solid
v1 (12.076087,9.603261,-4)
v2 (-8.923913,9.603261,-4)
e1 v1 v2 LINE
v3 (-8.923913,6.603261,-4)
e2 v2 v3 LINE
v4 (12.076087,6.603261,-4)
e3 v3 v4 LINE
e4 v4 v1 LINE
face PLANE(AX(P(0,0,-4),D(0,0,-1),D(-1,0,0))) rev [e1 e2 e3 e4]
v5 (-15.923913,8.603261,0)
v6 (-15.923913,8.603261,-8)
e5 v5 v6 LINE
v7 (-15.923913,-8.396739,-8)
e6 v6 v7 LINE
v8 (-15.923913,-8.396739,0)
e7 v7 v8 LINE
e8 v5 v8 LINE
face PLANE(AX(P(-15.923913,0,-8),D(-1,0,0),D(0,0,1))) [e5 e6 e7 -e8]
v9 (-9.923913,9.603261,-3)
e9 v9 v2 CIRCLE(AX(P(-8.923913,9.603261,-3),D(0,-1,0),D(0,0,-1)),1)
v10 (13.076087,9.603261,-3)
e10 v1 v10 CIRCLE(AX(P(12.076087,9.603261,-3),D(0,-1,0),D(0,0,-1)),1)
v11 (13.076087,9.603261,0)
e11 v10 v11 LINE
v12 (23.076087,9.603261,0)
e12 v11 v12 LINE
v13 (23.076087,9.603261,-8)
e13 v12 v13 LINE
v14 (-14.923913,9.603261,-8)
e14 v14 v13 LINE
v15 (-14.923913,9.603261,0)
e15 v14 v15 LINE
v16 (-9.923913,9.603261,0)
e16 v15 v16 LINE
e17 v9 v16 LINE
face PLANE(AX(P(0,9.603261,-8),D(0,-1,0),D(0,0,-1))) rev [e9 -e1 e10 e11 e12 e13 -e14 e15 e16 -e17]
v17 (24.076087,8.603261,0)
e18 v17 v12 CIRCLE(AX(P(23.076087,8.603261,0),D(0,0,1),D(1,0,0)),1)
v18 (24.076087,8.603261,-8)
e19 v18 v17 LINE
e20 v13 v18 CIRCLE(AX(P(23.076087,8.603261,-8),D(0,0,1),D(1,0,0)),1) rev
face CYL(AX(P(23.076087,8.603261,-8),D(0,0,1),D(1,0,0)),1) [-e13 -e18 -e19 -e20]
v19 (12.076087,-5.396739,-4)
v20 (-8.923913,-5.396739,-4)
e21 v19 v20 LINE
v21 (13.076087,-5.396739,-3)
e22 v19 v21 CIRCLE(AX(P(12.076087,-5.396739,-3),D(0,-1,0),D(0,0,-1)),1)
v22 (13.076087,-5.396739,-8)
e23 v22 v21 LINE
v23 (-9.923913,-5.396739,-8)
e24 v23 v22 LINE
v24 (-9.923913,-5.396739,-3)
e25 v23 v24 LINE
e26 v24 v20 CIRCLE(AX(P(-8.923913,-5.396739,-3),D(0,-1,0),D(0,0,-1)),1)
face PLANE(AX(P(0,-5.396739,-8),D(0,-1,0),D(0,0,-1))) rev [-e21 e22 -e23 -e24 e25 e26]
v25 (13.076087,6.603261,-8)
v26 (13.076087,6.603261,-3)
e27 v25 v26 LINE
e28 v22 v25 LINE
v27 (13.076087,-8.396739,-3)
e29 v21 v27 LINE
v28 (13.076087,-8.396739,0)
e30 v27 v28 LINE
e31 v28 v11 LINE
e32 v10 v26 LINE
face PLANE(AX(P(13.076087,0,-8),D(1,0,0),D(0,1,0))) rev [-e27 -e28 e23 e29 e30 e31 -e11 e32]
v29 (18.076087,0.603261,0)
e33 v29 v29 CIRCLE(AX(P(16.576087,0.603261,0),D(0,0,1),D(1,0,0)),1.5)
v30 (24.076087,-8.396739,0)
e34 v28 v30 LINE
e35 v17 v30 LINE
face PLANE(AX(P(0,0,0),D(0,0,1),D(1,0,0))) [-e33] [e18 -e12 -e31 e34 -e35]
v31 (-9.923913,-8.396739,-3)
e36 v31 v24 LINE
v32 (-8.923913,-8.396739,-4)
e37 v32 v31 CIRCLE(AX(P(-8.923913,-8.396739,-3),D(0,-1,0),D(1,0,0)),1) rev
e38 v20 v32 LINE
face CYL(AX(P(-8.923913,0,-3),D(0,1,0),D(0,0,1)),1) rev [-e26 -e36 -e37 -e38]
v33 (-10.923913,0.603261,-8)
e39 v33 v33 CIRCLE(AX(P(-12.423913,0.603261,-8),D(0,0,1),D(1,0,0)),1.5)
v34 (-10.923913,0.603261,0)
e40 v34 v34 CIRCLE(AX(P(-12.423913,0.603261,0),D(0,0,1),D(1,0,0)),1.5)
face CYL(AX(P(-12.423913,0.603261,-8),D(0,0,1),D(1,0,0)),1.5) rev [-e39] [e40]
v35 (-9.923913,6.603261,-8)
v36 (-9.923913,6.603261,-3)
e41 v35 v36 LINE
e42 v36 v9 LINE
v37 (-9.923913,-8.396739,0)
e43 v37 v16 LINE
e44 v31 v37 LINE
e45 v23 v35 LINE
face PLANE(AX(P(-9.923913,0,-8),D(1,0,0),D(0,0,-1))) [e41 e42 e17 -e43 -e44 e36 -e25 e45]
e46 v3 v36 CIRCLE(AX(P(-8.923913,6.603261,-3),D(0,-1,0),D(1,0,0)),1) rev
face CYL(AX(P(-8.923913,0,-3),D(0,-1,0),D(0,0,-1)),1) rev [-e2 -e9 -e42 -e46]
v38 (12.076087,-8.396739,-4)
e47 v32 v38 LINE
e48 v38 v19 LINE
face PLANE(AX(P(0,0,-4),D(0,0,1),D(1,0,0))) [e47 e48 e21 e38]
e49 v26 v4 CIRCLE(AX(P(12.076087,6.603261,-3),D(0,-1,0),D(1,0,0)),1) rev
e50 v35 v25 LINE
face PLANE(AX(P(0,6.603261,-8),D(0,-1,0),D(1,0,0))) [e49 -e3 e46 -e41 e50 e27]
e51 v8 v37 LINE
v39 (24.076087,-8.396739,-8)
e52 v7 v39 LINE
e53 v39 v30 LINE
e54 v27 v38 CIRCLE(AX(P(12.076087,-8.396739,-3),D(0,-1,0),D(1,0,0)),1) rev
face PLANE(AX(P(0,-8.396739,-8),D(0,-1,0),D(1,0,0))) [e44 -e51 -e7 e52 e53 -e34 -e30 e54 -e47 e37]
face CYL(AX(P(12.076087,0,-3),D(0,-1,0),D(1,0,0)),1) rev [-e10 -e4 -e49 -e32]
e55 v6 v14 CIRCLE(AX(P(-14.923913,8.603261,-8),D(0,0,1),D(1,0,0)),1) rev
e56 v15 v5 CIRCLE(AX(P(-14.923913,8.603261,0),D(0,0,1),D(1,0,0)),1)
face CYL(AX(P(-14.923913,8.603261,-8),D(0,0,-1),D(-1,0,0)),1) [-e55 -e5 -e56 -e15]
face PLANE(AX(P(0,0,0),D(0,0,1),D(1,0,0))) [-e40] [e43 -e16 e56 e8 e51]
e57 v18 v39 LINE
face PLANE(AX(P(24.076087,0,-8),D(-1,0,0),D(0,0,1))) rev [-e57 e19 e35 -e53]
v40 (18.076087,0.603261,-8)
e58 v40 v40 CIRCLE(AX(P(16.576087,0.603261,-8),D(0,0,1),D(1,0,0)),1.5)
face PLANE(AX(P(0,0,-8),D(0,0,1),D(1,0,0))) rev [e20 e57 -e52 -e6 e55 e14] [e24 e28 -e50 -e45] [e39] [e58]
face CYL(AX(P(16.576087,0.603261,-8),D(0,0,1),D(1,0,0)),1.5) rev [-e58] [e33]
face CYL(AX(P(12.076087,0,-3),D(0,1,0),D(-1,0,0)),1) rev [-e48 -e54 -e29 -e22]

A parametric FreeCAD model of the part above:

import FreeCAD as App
import Part
import Sketcher

V = App.Vector
Q = App.Units.Quantity


def edges_at(feature, points):
    """Names of the edges that pass closest to the given points."""
    edges = feature.Shape.Edges
    near = lambda p: min(range(len(edges)), key=lambda i: edges[i].distToShape(Part.Vertex(*p))[0])
    return sorted({f"Edge{near(p) + 1}" for p in points})

doc = App.newDocument("Part")
body = doc.addObject("PartDesign::Body", "Body")

sketch1 = body.newObject("Sketcher::SketchObject", "Sketch")
sketch1.AttachmentSupport = (doc.getObject("XY_Plane"), [""])
sketch1.MapMode = "FlatFace"
sketch1.addGeometry([
    Part.LineSegment(V(24.076087, 9.603261, 0), V(-15.923913, 9.603261, 0)),
    Part.LineSegment(V(-15.923913, 9.603261, 0), V(-15.923913, -8.396739, 0)),
    Part.LineSegment(V(-15.923913, -8.396739, 0), V(24.076087, -8.396739, 0)),
    Part.LineSegment(V(24.076087, -8.396739, 0), V(24.076087, 9.603261, 0)),
    Part.Circle(V(16.576087, 0.603261, 0), V(0, 0, 1), 1.5),
    Part.Circle(V(-12.423913, 0.603261, 0), V(0, 0, 1), 1.5),
    Part.LineSegment(V(-9.923913, 6.603261, 0), V(13.076087, 6.603261, 0)),
    Part.LineSegment(V(13.076087, 6.603261, 0), V(13.076087, -5.396739, 0)),
    Part.LineSegment(V(13.076087, -5.396739, 0), V(-9.923913, -5.396739, 0)),
    Part.LineSegment(V(-9.923913, -5.396739, 0), V(-9.923913, 6.603261, 0)),
], False)
sketch1.addConstraint([
    Sketcher.Constraint("Coincident", 0, 2, 1, 1),
    Sketcher.Constraint("Coincident", 1, 2, 2, 1),
    Sketcher.Constraint("Coincident", 2, 2, 3, 1),
    Sketcher.Constraint("Coincident", 3, 2, 0, 1),
    Sketcher.Constraint("Coincident", 6, 2, 7, 1),
    Sketcher.Constraint("Coincident", 7, 2, 8, 1),
    Sketcher.Constraint("Coincident", 8, 2, 9, 1),
    Sketcher.Constraint("Coincident", 9, 2, 6, 1),
    Sketcher.Constraint("Horizontal", 0),
    Sketcher.Constraint("Vertical", 1),
    Sketcher.Constraint("Horizontal", 2),
    Sketcher.Constraint("Vertical", 3),
    Sketcher.Constraint("Horizontal", 6),
    Sketcher.Constraint("Vertical", 7),
    Sketcher.Constraint("Horizontal", 8),
    Sketcher.Constraint("Vertical", 9),
    Sketcher.Constraint("Equal", 4, 5),
    Sketcher.Constraint("Horizontal", 4, 3, 5, 3),
    Sketcher.Constraint("Diameter", 4, Q("3 mm")),
    Sketcher.Constraint("DistanceX", 0, 2, 0, 1, Q("40 mm")),
    Sketcher.Constraint("DistanceX", 6, 1, 6, 2, Q("23 mm")),
    Sketcher.Constraint("DistanceY", 1, 2, 1, 1, Q("18 mm")),
    Sketcher.Constraint("DistanceY", 7, 2, 7, 1, Q("12 mm")),
    Sketcher.Constraint("DistanceX", 5, 3, 4, 3, Q("29 mm")),
    Sketcher.Constraint("DistanceY", 5, 3, 0, 2, Q("9 mm")),
    Sketcher.Constraint("DistanceY", 4, 3, 6, 2, Q("6 mm")),
    Sketcher.Constraint("DistanceX", 6, 2, 3, 2, Q("11 mm")),
    Sketcher.Constraint("DistanceX", 0, 2, 5, 3, Q("3.5 mm")),
    Sketcher.Constraint("DistanceY", -1, 1, 4, 3, Q("0.603261 mm")),
    Sketcher.Constraint("DistanceX", -1, 1, 4, 3, Q("16.576087 mm")),
])
pad1 = body.newObject("PartDesign::Pad", "Pad")
pad1.Profile = sketch1
pad1.Length = 8
pad1.Reversed = True

sketch2 = body.newObject("Sketcher::SketchObject", "Sketch001")
sketch2.AttachmentSupport = (doc.getObject("XY_Plane"), [""])
sketch2.MapMode = "FlatFace"
sketch2.addGeometry([
    Part.LineSegment(V(-9.923913, 9.603261, 0), V(-9.923913, 6.603261, 0)),
    Part.LineSegment(V(-9.923913, 6.603261, 0), V(13.076087, 6.603261, 0)),
    Part.LineSegment(V(13.076087, 6.603261, 0), V(13.076087, 9.603261, 0)),
    Part.LineSegment(V(13.076087, 9.603261, 0), V(-9.923913, 9.603261, 0)),
    Part.LineSegment(V(-9.923913, -5.396739, 0), V(-9.923913, -8.396739, 0)),
    Part.LineSegment(V(-9.923913, -8.396739, 0), V(13.076087, -8.396739, 0)),
    Part.LineSegment(V(13.076087, -8.396739, 0), V(13.076087, -5.396739, 0)),
    Part.LineSegment(V(13.076087, -5.396739, 0), V(-9.923913, -5.396739, 0)),
], False)
sketch2.addConstraint([
    Sketcher.Constraint("Coincident", 0, 2, 1, 1),
    Sketcher.Constraint("Coincident", 1, 2, 2, 1),
    Sketcher.Constraint("Coincident", 2, 2, 3, 1),
    Sketcher.Constraint("Coincident", 3, 2, 0, 1),
    Sketcher.Constraint("Coincident", 4, 2, 5, 1),
    Sketcher.Constraint("Coincident", 5, 2, 6, 1),
    Sketcher.Constraint("Coincident", 6, 2, 7, 1),
    Sketcher.Constraint("Coincident", 7, 2, 4, 1),
    Sketcher.Constraint("Vertical", 0),
    Sketcher.Constraint("Horizontal", 1),
    Sketcher.Constraint("Vertical", 2),
    Sketcher.Constraint("Horizontal", 3),
    Sketcher.Constraint("Vertical", 4),
    Sketcher.Constraint("Horizontal", 5),
    Sketcher.Constraint("Vertical", 6),
    Sketcher.Constraint("Horizontal", 7),
    Sketcher.Constraint("Vertical", 3, 2, 4, 2),
    Sketcher.Constraint("Vertical", 2, 2, 5, 2),
    Sketcher.Constraint("Equal", 2, 4),
    Sketcher.Constraint("DistanceX", 1, 1, 1, 2, Q("23 mm")),
    Sketcher.Constraint("DistanceY", 0, 2, 0, 1, Q("3 mm")),
    Sketcher.Constraint("DistanceY", 4, 2, 0, 2, Q("15 mm")),
    Sketcher.Constraint("DistanceY", -1, 1, 0, 2, Q("6.603261 mm")),
    Sketcher.Constraint("DistanceX", 0, 2, -1, 1, Q("9.923913 mm")),
])
pocket1 = body.newObject("PartDesign::Pocket", "Pocket")
pocket1.Profile = sketch2
pocket1.Length = 4
doc.recompute()

fillet = body.newObject("PartDesign::Fillet", "Fillet")
fillet.Base = (pocket1, edges_at(pocket1, [
    (-9.924, 8.103, -4),
    (13.076, 8.103, -4),
    (-9.924, -6.897, -4),
    (13.076, -6.897, -4),
]))
fillet.Radius = 1
doc.recompute()

fillet2 = body.newObject("PartDesign::Fillet", "Fillet001")
fillet2.Base = (fillet, edges_at(fillet, [(-15.924, 9.603, -4), (24.076, 9.603, -4)]))
fillet2.Radius = 1

doc.recompute()
